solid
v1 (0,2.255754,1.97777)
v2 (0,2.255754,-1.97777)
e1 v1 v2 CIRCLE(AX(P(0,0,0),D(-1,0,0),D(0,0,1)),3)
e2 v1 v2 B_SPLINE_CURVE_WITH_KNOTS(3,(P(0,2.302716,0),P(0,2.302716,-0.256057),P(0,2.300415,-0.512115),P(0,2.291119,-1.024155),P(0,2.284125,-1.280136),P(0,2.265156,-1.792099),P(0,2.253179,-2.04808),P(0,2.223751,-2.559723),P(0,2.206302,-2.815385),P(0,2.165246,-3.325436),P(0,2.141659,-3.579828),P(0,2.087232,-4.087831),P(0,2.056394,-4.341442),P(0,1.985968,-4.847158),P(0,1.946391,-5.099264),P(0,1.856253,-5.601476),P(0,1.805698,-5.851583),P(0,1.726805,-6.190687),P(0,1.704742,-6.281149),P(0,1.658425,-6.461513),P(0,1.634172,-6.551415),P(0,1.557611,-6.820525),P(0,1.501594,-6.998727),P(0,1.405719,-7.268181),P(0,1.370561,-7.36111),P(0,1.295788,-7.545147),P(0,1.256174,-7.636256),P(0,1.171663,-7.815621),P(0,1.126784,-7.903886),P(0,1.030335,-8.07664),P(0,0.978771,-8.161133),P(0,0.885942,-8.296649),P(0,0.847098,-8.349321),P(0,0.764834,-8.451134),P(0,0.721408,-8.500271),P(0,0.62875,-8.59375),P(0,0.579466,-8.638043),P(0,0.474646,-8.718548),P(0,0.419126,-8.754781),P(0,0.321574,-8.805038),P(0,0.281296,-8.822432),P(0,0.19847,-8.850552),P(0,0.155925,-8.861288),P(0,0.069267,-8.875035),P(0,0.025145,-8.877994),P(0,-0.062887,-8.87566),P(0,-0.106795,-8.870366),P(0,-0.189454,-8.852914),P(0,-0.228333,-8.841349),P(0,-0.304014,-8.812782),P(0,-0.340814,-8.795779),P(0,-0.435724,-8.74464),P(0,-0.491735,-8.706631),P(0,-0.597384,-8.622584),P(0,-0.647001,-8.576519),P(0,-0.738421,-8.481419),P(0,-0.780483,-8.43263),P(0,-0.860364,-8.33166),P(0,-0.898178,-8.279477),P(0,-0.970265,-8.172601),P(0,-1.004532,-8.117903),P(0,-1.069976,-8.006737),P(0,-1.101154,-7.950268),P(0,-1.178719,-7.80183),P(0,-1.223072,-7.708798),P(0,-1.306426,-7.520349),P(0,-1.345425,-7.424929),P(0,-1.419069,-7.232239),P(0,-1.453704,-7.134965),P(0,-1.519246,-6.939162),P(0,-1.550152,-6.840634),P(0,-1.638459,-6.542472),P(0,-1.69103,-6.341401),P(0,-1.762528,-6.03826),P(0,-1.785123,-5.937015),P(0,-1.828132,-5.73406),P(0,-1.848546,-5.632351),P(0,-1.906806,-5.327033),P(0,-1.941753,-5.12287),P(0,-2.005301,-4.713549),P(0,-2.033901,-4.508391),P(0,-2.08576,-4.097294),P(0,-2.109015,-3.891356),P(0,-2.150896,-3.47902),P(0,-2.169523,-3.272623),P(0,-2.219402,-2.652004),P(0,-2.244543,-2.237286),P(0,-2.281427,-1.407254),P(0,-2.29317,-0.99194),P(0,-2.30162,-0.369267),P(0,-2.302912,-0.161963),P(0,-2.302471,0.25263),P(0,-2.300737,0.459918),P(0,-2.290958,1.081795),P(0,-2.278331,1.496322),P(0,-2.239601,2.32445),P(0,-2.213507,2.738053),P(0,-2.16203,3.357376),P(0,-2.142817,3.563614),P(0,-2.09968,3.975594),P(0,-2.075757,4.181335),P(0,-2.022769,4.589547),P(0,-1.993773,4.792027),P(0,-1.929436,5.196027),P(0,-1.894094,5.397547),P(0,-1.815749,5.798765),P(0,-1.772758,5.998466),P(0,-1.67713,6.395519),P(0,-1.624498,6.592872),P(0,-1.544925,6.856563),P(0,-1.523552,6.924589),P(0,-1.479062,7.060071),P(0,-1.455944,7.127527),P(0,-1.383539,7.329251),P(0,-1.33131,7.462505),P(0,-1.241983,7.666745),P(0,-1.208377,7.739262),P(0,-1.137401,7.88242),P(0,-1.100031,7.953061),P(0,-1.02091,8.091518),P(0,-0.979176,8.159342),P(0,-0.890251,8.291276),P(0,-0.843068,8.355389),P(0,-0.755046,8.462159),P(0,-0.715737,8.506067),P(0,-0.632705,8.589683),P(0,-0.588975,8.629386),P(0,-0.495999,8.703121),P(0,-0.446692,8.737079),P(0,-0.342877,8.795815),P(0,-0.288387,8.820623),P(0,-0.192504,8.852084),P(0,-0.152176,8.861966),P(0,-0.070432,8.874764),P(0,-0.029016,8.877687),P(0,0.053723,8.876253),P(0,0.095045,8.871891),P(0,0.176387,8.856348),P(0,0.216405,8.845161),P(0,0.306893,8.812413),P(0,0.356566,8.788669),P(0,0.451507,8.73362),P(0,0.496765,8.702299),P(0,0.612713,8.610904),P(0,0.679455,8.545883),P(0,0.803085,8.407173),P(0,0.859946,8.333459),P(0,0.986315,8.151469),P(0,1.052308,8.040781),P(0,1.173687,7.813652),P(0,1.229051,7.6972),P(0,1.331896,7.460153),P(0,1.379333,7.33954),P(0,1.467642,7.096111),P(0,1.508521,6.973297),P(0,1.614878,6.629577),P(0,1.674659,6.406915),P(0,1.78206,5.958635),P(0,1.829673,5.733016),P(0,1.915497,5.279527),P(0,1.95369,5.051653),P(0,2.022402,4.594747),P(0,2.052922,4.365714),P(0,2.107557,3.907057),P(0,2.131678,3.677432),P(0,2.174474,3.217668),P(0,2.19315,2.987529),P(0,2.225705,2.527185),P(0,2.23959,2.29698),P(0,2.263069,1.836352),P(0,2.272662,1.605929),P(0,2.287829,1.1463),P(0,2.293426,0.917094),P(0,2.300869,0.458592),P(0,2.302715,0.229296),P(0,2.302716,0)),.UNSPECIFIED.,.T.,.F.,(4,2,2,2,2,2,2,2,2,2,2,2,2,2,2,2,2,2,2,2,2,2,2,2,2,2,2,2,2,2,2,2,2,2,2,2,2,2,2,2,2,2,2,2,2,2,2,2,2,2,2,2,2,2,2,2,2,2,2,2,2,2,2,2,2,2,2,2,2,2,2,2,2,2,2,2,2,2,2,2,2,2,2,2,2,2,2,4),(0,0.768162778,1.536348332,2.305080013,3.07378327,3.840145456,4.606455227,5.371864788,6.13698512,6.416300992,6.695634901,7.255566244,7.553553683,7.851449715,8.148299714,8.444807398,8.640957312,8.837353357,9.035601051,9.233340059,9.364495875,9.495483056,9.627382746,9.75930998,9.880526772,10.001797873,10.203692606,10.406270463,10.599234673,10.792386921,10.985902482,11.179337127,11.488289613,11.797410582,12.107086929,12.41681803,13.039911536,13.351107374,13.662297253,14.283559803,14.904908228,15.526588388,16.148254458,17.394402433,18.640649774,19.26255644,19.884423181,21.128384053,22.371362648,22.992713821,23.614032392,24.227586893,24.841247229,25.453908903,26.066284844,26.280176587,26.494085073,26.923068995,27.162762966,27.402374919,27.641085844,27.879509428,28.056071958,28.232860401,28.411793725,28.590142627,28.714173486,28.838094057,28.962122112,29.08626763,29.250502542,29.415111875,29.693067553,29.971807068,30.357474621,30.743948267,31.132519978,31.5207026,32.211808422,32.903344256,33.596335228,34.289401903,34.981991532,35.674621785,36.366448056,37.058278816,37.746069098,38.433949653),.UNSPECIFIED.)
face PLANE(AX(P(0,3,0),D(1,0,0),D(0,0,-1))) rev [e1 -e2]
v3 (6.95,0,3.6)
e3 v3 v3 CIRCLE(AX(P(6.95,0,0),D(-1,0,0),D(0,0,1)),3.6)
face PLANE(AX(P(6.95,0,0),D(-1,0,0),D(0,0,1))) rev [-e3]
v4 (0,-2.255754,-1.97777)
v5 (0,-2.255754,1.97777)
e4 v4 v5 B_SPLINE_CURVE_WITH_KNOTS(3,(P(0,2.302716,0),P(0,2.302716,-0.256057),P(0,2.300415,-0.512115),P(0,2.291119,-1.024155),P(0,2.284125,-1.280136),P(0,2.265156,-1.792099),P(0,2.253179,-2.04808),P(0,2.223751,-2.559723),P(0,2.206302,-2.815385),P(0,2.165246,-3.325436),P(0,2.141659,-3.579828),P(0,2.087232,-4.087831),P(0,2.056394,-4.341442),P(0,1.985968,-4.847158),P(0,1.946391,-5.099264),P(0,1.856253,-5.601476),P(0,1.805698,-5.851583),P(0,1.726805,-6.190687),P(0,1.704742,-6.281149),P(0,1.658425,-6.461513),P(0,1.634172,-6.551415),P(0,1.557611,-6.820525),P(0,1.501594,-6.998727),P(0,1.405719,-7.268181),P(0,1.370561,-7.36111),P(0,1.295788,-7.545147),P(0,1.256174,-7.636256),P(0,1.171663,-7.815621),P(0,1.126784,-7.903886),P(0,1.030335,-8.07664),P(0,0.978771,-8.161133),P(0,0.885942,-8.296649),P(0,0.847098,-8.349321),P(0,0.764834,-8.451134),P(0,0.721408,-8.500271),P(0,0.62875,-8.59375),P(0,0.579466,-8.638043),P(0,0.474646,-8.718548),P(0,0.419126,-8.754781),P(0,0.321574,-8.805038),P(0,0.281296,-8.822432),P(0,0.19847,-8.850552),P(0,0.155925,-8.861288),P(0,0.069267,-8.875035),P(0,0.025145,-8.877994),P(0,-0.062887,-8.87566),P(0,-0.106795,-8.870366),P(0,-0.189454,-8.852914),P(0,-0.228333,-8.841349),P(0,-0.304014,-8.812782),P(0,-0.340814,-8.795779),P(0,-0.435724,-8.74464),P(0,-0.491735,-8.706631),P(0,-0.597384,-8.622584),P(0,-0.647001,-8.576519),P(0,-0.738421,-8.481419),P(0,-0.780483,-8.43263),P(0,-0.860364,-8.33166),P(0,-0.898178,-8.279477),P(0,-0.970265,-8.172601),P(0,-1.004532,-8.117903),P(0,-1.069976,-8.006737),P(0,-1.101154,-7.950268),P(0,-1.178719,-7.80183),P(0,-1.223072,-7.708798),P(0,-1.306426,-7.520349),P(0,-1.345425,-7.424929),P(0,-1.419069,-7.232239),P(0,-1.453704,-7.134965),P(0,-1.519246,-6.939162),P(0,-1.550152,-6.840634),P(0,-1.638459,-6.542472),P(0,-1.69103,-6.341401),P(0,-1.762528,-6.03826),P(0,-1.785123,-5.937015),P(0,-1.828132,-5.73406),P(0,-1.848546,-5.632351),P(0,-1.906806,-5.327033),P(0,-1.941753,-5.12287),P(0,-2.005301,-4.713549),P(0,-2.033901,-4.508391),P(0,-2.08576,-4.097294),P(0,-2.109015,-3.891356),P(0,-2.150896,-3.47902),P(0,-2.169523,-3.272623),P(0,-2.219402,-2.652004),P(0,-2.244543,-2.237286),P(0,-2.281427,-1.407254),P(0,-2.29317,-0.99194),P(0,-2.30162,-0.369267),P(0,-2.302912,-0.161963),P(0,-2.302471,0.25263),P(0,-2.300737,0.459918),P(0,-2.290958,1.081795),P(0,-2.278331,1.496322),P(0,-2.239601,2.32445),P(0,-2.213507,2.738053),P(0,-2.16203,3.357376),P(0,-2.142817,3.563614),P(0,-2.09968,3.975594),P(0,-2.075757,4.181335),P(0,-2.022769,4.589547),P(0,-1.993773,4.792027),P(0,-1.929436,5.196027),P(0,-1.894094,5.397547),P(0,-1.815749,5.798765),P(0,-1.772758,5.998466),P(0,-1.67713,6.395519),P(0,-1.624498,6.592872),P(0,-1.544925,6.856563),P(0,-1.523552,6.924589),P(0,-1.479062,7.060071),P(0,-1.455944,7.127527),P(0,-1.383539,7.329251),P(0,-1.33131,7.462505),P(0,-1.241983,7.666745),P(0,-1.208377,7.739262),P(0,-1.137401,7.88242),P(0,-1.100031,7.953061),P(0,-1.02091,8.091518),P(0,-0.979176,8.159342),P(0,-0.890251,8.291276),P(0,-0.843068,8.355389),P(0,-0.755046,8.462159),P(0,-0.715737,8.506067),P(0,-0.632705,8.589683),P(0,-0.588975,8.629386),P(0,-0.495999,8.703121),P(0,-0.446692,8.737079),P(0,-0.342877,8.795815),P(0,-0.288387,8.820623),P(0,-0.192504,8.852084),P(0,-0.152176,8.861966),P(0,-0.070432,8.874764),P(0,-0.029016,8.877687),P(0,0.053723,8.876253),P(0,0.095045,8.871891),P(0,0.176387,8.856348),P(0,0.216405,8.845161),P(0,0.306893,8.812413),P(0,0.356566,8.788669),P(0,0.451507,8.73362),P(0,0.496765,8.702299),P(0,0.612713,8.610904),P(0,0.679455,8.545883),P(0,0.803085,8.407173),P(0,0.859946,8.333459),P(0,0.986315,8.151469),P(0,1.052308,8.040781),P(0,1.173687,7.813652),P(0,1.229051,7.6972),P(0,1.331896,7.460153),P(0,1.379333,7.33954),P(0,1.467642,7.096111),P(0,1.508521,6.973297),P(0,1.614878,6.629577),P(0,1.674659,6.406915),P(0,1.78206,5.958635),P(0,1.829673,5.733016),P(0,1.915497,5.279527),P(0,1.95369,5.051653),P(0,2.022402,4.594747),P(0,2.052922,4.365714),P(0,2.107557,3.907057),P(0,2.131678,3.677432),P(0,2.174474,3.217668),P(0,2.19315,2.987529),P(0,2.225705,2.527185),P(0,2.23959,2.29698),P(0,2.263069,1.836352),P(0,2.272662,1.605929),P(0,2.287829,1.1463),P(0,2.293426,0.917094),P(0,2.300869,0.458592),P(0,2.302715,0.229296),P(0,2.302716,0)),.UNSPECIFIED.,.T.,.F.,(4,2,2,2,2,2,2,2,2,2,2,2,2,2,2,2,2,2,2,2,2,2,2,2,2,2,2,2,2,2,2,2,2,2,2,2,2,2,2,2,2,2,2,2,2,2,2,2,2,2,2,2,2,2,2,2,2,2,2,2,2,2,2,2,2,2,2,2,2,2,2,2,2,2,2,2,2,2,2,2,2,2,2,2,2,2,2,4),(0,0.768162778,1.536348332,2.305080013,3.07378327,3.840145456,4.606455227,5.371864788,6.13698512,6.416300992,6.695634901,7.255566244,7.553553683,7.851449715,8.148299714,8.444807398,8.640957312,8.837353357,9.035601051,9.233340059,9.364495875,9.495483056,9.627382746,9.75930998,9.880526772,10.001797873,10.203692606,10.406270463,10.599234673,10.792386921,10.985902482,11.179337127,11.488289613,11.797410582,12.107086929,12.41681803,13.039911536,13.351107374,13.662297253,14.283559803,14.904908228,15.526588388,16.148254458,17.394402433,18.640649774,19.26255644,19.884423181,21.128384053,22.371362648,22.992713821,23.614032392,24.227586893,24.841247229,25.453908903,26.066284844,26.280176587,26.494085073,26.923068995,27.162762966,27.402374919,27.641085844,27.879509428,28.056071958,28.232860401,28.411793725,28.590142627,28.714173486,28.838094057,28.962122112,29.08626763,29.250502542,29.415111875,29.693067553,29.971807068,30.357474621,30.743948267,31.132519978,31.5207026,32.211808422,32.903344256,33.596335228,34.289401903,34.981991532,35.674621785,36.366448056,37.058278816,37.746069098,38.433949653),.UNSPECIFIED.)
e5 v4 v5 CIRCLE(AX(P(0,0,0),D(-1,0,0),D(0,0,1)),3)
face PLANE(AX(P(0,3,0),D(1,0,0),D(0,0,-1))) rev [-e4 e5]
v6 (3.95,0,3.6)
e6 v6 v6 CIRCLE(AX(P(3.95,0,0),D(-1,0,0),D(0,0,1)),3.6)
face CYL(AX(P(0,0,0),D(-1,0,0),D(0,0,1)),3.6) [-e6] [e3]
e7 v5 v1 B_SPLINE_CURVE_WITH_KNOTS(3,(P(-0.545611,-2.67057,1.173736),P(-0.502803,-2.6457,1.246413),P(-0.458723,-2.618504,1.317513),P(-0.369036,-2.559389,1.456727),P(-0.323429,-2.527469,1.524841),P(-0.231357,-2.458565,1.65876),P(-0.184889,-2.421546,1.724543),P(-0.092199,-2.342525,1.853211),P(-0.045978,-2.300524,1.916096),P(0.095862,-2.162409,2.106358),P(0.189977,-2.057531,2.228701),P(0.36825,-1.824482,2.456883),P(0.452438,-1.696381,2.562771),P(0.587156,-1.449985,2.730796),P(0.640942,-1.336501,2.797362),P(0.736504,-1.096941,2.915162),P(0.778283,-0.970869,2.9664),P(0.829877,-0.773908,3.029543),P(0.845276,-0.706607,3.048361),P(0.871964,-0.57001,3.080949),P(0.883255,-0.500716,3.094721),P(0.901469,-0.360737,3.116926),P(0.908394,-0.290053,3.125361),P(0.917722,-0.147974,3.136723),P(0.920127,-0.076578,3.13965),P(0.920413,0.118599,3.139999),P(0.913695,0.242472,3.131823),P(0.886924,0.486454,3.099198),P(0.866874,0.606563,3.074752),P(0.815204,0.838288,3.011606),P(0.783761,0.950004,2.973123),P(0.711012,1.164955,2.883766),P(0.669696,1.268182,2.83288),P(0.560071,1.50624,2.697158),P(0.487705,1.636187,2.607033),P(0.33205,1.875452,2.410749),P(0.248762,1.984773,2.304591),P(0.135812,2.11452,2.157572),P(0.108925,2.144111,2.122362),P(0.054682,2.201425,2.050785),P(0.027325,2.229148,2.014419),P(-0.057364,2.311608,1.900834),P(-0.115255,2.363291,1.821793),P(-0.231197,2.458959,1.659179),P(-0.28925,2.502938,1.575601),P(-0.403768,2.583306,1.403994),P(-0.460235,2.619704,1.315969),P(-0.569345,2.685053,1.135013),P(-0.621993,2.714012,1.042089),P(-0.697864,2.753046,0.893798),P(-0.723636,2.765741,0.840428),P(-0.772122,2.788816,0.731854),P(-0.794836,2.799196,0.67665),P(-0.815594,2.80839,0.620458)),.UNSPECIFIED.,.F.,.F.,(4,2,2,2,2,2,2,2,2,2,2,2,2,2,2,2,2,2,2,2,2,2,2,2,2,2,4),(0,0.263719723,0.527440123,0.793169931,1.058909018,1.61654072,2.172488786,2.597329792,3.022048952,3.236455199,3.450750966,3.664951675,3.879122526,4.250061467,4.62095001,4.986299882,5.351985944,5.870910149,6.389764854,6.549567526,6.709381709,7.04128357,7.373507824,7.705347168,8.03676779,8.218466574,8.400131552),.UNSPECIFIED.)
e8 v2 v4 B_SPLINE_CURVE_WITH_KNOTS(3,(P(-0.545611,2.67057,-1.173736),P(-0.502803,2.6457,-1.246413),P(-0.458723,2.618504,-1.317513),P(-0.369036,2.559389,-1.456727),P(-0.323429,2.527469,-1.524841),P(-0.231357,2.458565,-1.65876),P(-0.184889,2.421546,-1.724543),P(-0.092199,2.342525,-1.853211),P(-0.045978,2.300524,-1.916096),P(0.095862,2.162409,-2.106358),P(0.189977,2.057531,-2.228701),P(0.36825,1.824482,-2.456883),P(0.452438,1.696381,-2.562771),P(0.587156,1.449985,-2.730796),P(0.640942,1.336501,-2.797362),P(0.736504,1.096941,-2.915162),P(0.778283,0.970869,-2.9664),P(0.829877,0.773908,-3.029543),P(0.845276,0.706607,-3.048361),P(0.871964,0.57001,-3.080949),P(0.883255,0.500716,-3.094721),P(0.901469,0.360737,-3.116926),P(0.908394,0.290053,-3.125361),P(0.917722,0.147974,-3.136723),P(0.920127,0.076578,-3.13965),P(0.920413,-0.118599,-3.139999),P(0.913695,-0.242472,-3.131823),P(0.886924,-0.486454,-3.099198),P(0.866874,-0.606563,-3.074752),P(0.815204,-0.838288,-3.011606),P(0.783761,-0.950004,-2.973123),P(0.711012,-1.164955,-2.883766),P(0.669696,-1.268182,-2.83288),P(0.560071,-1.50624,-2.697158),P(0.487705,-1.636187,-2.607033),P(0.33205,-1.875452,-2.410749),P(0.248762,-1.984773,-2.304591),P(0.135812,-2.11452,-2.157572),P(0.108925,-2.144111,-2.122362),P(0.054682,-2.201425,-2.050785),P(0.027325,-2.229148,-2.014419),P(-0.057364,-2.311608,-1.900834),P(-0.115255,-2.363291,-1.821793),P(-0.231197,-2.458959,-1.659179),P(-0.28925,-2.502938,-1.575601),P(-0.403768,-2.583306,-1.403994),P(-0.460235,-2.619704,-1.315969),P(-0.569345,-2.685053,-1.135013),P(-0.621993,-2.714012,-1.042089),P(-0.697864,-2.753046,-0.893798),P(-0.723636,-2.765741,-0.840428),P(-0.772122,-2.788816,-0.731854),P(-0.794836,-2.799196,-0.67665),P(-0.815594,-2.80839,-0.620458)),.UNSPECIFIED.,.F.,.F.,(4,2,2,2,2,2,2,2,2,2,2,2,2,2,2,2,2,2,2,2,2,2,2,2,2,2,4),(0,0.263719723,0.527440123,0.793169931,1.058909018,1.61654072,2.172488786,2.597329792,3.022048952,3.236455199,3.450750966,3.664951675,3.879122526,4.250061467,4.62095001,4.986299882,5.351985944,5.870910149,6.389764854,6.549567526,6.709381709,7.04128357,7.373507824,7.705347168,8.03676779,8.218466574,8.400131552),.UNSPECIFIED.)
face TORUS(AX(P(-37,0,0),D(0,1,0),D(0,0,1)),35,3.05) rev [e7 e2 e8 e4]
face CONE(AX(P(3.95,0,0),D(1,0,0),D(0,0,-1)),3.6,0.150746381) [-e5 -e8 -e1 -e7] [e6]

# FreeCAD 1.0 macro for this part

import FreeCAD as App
import Part
import Sketcher

V = App.Vector
Q = App.Units.Quantity


def add_polygon(sketch, points):
    """Adds a closed chain of lines whose ends are joined by coincident constraints."""
    first, n = sketch.GeometryCount, len(points)
    for a, b in zip(points, points[1:] + points[:1]):
        sketch.addGeometry(Part.LineSegment(App.Vector(*a, 0), App.Vector(*b, 0)), False)
    for i in range(n):
        sketch.addConstraint(Sketcher.Constraint("Coincident", first + i, 2, first + (i + 1) % n, 1))

doc = App.newDocument("Part")
params = doc.addObject("Spreadsheet::Sheet", "Params")
for row, (alias, value) in enumerate([
    ("sketch1_width", "3 mm"),
    ("sketch1_height", "3.6 mm"),
    ("sketch1_width2", "6.95 mm"),
    ("revolution_angle", "360 deg"),
    ("sketch2_diameter", "6.1 mm"),
    ("sketch2_height", "10 mm"),
    ("groove_angle", "360 deg"),
], start=1):
    params.set(f"A{row}", alias)
    params.set(f"B{row}", "=" + value)
    params.setAlias(f"B{row}", alias)

body = doc.addObject("PartDesign::Body", "Body")

sketch1 = body.newObject("Sketcher::SketchObject", "Sketch")
sketch1.AttachmentSupport = (doc.getObject("XY_Plane"), [""])
sketch1.MapMode = "FlatFace"
add_polygon(sketch1, [(0, 0), (6.95, 0), (6.95, 3.6), (3.95, 3.6), (0, 3)])
sketch1.addConstraint([
    Sketcher.Constraint("Horizontal", 0),
    Sketcher.Constraint("Vertical", 1),
    Sketcher.Constraint("Horizontal", 2),
    Sketcher.Constraint("Vertical", 4),
    Sketcher.Constraint("Coincident", 4, 2, -1, 1),
    Sketcher.Constraint("Equal", 2, 4),
    Sketcher.Constraint("DistanceX", 2, 2, 2, 1, Q("3 mm")),
    Sketcher.Constraint("DistanceY", 1, 1, 1, 2, Q("3.6 mm")),
    Sketcher.Constraint("DistanceX", 0, 1, 0, 2, Q("6.95 mm")),
])
sketch1.setExpression("Constraints[11]", "Params.sketch1_width")
sketch1.setExpression("Constraints[12]", "Params.sketch1_height")
sketch1.setExpression("Constraints[13]", "Params.sketch1_width2")
revolution = body.newObject("PartDesign::Revolution", "Revolution")
revolution.Profile = sketch1
revolution.ReferenceAxis = (sketch1, ["H_Axis"])
revolution.setExpression("Angle", "Params.revolution_angle")

sketch2 = body.newObject("Sketcher::SketchObject", "Sketch001")
sketch2.AttachmentSupport = (doc.getObject("XY_Plane"), [""])
sketch2.MapMode = "FlatFace"
sketch2.addGeometry(Part.Circle(V(-2, 0, 0), V(0, 0, 1), 3.05), False)
sketch2.addGeometry(Part.LineSegment(V(-37, 0, 0), V(-37, -10, 0)), True)
sketch2.addConstraint([
    Sketcher.Constraint("Vertical", 1),
    Sketcher.Constraint("PointOnObject", 0, 3, -1),
    Sketcher.Constraint("PointOnObject", 1, 1, -1),
    Sketcher.Constraint("Diameter", 0, Q("6.1 mm")),
    Sketcher.Constraint("DistanceY", 1, 2, 1, 1, Q("10 mm")),
    Sketcher.Constraint("DistanceX", 0, 3, -1, 1, Q("2 mm")),
    Sketcher.Constraint("DistanceX", 1, 1, -1, 1, Q("37 mm")),
])
sketch2.setExpression("Constraints[3]", "Params.sketch2_diameter")
sketch2.setExpression("Constraints[4]", "Params.sketch2_height")
groove = body.newObject("PartDesign::Groove", "Groove")
groove.Profile = sketch2
groove.ReferenceAxis = (sketch2, ["Axis0"])
groove.setExpression("Angle", "Params.groove_angle")

doc.recompute()
